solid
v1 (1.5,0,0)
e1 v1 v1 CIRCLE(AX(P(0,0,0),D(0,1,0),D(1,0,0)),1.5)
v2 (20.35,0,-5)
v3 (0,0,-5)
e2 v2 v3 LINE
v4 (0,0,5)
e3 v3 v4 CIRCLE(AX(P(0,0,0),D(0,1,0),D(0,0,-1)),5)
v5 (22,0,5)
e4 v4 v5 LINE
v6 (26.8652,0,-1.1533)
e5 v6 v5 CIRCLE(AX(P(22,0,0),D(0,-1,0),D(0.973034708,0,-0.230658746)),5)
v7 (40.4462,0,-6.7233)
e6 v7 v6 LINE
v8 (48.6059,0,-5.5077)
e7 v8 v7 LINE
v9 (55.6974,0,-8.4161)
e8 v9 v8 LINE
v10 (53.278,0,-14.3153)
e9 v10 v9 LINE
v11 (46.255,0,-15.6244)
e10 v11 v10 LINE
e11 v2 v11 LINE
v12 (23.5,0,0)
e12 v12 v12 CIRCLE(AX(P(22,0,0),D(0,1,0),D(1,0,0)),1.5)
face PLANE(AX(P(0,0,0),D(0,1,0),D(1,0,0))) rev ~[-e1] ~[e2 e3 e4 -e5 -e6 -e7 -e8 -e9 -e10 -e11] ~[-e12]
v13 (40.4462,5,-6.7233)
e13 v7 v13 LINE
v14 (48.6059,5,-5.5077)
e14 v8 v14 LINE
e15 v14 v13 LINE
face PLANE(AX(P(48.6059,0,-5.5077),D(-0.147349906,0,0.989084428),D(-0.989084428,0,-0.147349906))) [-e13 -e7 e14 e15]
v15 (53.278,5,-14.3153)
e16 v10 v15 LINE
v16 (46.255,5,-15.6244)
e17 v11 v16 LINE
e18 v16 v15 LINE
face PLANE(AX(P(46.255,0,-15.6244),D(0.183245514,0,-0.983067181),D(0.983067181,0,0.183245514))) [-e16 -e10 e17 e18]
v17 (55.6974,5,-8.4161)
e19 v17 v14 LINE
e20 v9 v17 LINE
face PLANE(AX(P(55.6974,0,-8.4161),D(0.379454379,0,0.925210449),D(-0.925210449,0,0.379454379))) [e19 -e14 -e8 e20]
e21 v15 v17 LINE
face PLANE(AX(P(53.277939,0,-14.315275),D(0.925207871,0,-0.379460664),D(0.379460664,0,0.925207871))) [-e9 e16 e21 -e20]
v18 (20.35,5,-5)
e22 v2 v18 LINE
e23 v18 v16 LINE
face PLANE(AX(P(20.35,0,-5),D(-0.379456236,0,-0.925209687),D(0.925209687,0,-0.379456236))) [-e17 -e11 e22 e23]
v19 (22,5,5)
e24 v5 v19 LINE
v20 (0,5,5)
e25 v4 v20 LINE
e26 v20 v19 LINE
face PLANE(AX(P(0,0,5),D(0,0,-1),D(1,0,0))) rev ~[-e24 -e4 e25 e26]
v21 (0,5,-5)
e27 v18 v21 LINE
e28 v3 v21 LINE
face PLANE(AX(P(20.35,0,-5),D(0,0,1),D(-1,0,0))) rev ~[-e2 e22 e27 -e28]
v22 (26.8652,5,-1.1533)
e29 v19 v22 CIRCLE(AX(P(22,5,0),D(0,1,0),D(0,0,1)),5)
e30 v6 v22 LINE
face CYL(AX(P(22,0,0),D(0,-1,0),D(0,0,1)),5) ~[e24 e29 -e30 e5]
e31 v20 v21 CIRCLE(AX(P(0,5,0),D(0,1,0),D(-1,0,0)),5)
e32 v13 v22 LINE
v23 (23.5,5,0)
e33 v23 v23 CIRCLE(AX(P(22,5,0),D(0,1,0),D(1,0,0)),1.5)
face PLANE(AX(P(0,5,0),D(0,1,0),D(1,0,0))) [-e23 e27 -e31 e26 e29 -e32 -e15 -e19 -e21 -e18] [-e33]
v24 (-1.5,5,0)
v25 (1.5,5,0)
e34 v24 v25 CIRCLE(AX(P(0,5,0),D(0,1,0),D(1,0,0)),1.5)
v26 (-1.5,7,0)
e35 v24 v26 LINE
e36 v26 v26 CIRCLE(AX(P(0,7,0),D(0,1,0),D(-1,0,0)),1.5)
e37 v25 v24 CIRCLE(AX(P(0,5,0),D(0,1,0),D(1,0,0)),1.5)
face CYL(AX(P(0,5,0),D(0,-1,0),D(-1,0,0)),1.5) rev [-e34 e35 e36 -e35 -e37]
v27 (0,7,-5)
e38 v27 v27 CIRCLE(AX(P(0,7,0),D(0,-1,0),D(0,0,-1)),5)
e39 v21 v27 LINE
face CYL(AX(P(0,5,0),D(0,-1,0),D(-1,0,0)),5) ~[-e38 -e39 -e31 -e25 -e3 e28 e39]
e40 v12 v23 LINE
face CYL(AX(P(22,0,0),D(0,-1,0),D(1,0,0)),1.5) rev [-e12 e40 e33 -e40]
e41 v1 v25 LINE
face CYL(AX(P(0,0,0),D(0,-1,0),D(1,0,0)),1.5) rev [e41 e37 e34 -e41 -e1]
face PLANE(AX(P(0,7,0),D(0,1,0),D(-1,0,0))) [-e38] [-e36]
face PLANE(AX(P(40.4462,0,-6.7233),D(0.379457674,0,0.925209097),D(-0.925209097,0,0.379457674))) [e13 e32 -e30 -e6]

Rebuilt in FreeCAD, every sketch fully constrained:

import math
import FreeCAD as App
import Part
import Sketcher

V = App.Vector
Q = App.Units.Quantity

doc = App.newDocument("Part")
body = doc.addObject("PartDesign::Body", "Body")

# Sketch on XZ plane
sketch1 = body.newObject("Sketcher::SketchObject", "Sketch")
sketch1.AttachmentSupport = (doc.getObject("XZ_Plane"), [""])
sketch1.MapMode = "FlatFace"
sketch1.addGeometry([
    Part.ArcOfCircle(Part.Circle(V(0, 0, 0), V(0, 0, 1), 5), math.radians(90), math.radians(270)),  # 0
    Part.LineSegment(V(0, 5, 0), V(22, 5, 0)),  # 1
    Part.ArcOfCircle(Part.Circle(V(22, 0, 0), V(0, 0, 1), 5), math.radians(-13), math.radians(90)),  # 2
    Part.LineSegment(V(26.9, -1.2, 0), V(40.4, -6.7, 0)),  # 3
    Part.LineSegment(V(40.4, -6.7, 0), V(48.6, -5.5, 0)),  # 4
    Part.LineSegment(V(48.6, -5.5, 0), V(55.7, -8.4, 0)),  # 5
    Part.LineSegment(V(55.7, -8.4, 0), V(53.3, -14.3, 0)),  # 6
    Part.LineSegment(V(53.3, -14.3, 0), V(46.3, -15.6, 0)),  # 7
    Part.LineSegment(V(46.3, -15.6, 0), V(20.4, -5, 0)),  # 8
    Part.LineSegment(V(20.4, -5, 0), V(0, -5, 0)),  # 9
    Part.Circle(V(0, 0, 0), V(0, 0, 1), 1.5),  # 10
    Part.Circle(V(22, 0, 0), V(0, 0, 1), 1.5),  # 11
], False)
sketch1.addConstraint([
    Sketcher.Constraint("Tangent", 0, 1, 1, 1),
    Sketcher.Constraint("Tangent", 1, 2, 2, 2),
    Sketcher.Constraint("Coincident", 2, 1, 3, 1),
    Sketcher.Constraint("Coincident", 3, 2, 4, 1),
    Sketcher.Constraint("Coincident", 4, 2, 5, 1),
    Sketcher.Constraint("Coincident", 5, 2, 6, 1),
    Sketcher.Constraint("Coincident", 6, 2, 7, 1),
    Sketcher.Constraint("Coincident", 7, 2, 8, 1),
    Sketcher.Constraint("Coincident", 8, 2, 9, 1),
    Sketcher.Constraint("Tangent", 9, 2, 0, 2),
    Sketcher.Constraint("Horizontal", 1),
    Sketcher.Constraint("Horizontal", 9),
    Sketcher.Constraint("Coincident", 0, 3, -1, 1),
    Sketcher.Constraint("Coincident", 10, 3, -1, 1),
    Sketcher.Constraint("Coincident", 11, 3, 2, 3),
    Sketcher.Constraint("Equal", 0, 2),
    Sketcher.Constraint("Equal", 10, 11),
    Sketcher.Constraint("Parallel", 3, 5),
    Sketcher.Constraint("Perpendicular", 5, 6),
    Sketcher.Constraint("Perpendicular", 6, 8),
    Sketcher.Constraint("Diameter", 10, Q("3 mm")),
    Sketcher.Constraint("Radius", 0, Q("5 mm")),
    Sketcher.Constraint("DistanceX", 1, 1, 1, 2, Q("22 mm")),
    Sketcher.Constraint("Angle", 8, Q("157.7 deg")),
    Sketcher.Constraint("DistanceX", 8, 2, 2, 3, Q("1.65 mm")),
    Sketcher.Constraint("Angle", 7, Q("-169.4411 deg")),
    Sketcher.Constraint("DistanceY", 3, 2, 2, 1, Q("5.57 mm")),
    Sketcher.Constraint("Distance", 6, Q("6.376 mm")),
    Sketcher.Constraint("Distance", 7, Q("7.144 mm")),
    Sketcher.Constraint("Distance", 8, Q("27.999 mm")),
    Sketcher.Constraint("DistanceX", -1, 1, 4, 2, Q("48.606 mm")),
    Sketcher.Constraint("DistanceY", 6, 2, 3, 2, Q("7.592 mm")),
])
pad1 = body.newObject("PartDesign::Pad", "Pad")
pad1.Profile = sketch1
pad1.Length = 5
pad1.Reversed = True

# Sketch on XZ plane
sketch2 = body.newObject("Sketcher::SketchObject", "Sketch001")
sketch2.AttachmentSupport = (doc.getObject("XZ_Plane"), [""])
sketch2.MapMode = "FlatFace"
sketch2.AttachmentOffset = App.Placement(V(0, 0, -5), App.Rotation())
sketch2.addGeometry([
    Part.Circle(V(0, 0, 0), V(0, 0, 1), 5),
    Part.Circle(V(0, 0, 0), V(0, 0, 1), 1.5),
], False)
sketch2.addConstraint([
    Sketcher.Constraint("Coincident", 0, 3, -1, 1),
    Sketcher.Constraint("Coincident", 1, 3, -1, 1),
    Sketcher.Constraint("Diameter", 0, Q("10 mm")),
    Sketcher.Constraint("Diameter", 1, Q("3 mm")),
])
pad2 = body.newObject("PartDesign::Pad", "Pad001")
pad2.Profile = sketch2
pad2.Length = 2
pad2.Reversed = True

doc.recompute()
